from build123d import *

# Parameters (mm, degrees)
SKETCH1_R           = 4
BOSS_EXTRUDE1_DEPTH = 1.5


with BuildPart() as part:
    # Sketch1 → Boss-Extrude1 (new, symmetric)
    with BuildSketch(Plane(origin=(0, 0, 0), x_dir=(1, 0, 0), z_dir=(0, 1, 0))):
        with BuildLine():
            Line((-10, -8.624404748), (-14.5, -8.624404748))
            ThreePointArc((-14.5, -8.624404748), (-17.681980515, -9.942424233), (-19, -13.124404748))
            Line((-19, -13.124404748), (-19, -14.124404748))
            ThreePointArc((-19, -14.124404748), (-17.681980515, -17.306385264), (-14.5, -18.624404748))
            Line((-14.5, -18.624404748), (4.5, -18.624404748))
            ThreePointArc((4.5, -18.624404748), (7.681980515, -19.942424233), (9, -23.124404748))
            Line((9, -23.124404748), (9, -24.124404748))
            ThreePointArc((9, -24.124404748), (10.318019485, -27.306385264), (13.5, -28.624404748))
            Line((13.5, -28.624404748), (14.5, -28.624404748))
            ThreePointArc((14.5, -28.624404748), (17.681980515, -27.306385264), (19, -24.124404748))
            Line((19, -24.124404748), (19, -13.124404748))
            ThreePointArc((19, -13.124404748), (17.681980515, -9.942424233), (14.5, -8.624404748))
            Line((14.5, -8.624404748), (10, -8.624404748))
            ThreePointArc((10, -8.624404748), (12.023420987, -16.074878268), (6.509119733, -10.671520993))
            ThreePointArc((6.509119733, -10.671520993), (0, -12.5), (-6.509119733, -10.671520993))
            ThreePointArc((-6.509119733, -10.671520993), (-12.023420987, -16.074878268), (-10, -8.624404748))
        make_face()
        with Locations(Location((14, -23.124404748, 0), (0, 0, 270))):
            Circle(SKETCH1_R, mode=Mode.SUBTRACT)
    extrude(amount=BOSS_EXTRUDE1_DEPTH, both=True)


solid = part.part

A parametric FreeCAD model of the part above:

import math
import FreeCAD as App
import Part
import Sketcher
from FreeCAD import Vector

doc = App.newDocument("Part")
body = doc.addObject("PartDesign::Body", "Body")

sketch1 = doc.addObject("Sketcher::SketchObject", "Sketch")
body.addObject(sketch1)
sketch1.AttachmentSupport = (doc.XZ_Plane, [""])
sketch1.MapMode = "FlatFace"
sketch1.addGeometry([
    Part.LineSegment(Vector(-10, 8.6, 0), Vector(-14.5, 8.6, 0)),
    Part.ArcOfCircle(Part.Circle(Vector(-14.5, 13.1, 0), Vector(0, 0, 1), 4.5), math.radians(-180), math.radians(-90)),
    Part.LineSegment(Vector(-19, 13.1, 0), Vector(-19, 14.1, 0)),
    Part.ArcOfCircle(Part.Circle(Vector(-14.5, 14.1, 0), Vector(0, 0, 1), 4.5), math.radians(90), math.radians(180)),
    Part.LineSegment(Vector(-14.5, 18.6, 0), Vector(4.5, 18.6, 0)),
    Part.ArcOfCircle(Part.Circle(Vector(4.5, 23.1, 0), Vector(0, 0, 1), 4.5), math.radians(-90), math.radians(0)),
    Part.LineSegment(Vector(9, 23.1, 0), Vector(9, 24.1, 0)),
    Part.ArcOfCircle(Part.Circle(Vector(13.5, 24.1, 0), Vector(0, 0, 1), 4.5), math.radians(90), math.radians(180)),
    Part.LineSegment(Vector(13.5, 28.6, 0), Vector(14.5, 28.6, 0)),
    Part.ArcOfCircle(Part.Circle(Vector(14.5, 24.1, 0), Vector(0, 0, 1), 4.5), math.radians(0), math.radians(90)),
    Part.LineSegment(Vector(19, 24.1, 0), Vector(19, 13.1, 0)),
    Part.ArcOfCircle(Part.Circle(Vector(14.5, 13.1, 0), Vector(0, 0, 1), 4.5), math.radians(-90), math.radians(0)),
    Part.LineSegment(Vector(14.5, 8.6, 0), Vector(10, 8.6, 0)),
    Part.ArcOfCircle(Part.Circle(Vector(10, 12.6, 0), Vector(0, 0, 1), 4), math.radians(-90), math.radians(209)),
    Part.ArcOfCircle(Part.Circle(Vector(0, 0, 0), Vector(0, 0, 1), 12.5), math.radians(59), math.radians(121)),
    Part.ArcOfCircle(Part.Circle(Vector(-10, 12.6, 0), Vector(0, 0, 1), 4), math.radians(-29), math.radians(270)),
    Part.Circle(Vector(14, 23.1, 0), Vector(0, 0, 1), 4),
], False)
sketch1.addConstraint([
    Sketcher.Constraint("Tangent", 0, 2, 1, 2),
    Sketcher.Constraint("Tangent", 1, 1, 2, 1),
    Sketcher.Constraint("Tangent", 2, 2, 3, 2),
    Sketcher.Constraint("Tangent", 3, 1, 4, 1),
    Sketcher.Constraint("Tangent", 4, 2, 5, 1),
    Sketcher.Constraint("Tangent", 5, 2, 6, 1),
    Sketcher.Constraint("Tangent", 6, 2, 7, 2),
    Sketcher.Constraint("Tangent", 7, 1, 8, 1),
    Sketcher.Constraint("Tangent", 8, 2, 9, 2),
    Sketcher.Constraint("Tangent", 9, 1, 10, 1),
    Sketcher.Constraint("Tangent", 10, 2, 11, 2),
    Sketcher.Constraint("Tangent", 11, 1, 12, 1),
    Sketcher.Constraint("Tangent", 12, 2, 13, 1),
    Sketcher.Constraint("Coincident", 13, 2, 14, 1),
    Sketcher.Constraint("Coincident", 14, 2, 15, 1),
    Sketcher.Constraint("Tangent", 15, 2, 0, 1),
    Sketcher.Constraint("Horizontal", 0),
    Sketcher.Constraint("Vertical", 2),
    Sketcher.Constraint("Horizontal", 4),
    Sketcher.Constraint("Vertical", 6),
    Sketcher.Constraint("Horizontal", 8),
    Sketcher.Constraint("Vertical", 10),
    Sketcher.Constraint("Horizontal", 12),
    Sketcher.Constraint("Coincident", 14, 3, -1, 1),
    Sketcher.Constraint("Equal", 1, 3),
    Sketcher.Constraint("Equal", 3, 5),
    Sketcher.Constraint("Equal", 5, 7),
    Sketcher.Constraint("Equal", 7, 9),
    Sketcher.Constraint("Equal", 9, 11),
    Sketcher.Constraint("Equal", 13, 15),
    Sketcher.Constraint("Equal", 15, 16),
    Sketcher.Constraint("Symmetric", 1, 3, 11, 3, -2),
    Sketcher.Constraint("Horizontal", 5, 3, 16, 3),
    Sketcher.Constraint("Horizontal", 13, 2, 14, 2),
    Sketcher.Constraint("Equal", 8, 2),
    Sketcher.Constraint("Equal", 2, 6),
    Sketcher.Constraint("Diameter", 16, 8.0),
    Sketcher.Constraint("Radius", 1, 4.5),
    Sketcher.Constraint("Radius", 14, 12.5),
    Sketcher.Constraint("DistanceX", 4, 1, 4, 2, 19.0),
    Sketcher.Constraint("DistanceX", 8, 1, 8, 2, 1.0),
    Sketcher.Constraint("DistanceX", 0, 2, 0, 1, 4.5),
    Sketcher.Constraint("DistanceX", -1, 1, 16, 3, 14.0),
    Sketcher.Constraint("DistanceX", -1, 1, 13, 2, 6.50912),
])
pad1 = doc.addObject("PartDesign::Pad", "Pad")
body.addObject(pad1)
pad1.Profile = sketch1
pad1.Length = 3
pad1.Midplane = True

doc.recompute()
